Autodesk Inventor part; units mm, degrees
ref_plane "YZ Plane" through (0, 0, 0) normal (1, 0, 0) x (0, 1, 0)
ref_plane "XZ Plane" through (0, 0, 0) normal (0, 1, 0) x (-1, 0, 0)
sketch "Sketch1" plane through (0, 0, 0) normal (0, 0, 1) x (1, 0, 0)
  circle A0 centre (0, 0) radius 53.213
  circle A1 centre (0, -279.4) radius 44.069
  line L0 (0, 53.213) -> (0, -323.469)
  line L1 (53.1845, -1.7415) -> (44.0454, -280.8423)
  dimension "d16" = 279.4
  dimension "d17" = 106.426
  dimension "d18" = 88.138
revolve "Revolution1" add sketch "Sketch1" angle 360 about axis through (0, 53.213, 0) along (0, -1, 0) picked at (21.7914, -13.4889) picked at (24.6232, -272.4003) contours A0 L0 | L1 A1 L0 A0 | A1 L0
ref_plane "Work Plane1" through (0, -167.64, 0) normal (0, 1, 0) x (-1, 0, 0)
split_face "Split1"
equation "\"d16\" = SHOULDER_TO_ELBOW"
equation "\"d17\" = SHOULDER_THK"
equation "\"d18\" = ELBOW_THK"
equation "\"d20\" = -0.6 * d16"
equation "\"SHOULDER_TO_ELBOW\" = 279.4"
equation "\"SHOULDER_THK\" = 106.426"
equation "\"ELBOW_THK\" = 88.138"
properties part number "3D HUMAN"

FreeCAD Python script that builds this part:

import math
import FreeCAD as App
import Part
import Sketcher
from FreeCAD import Vector
Q = App.Units.Quantity

doc = App.newDocument("Part")
params = doc.addObject("Spreadsheet::Sheet", "Params")
for row, (alias, value) in enumerate([
    ("sketch1_radius", "2.095 in"),
    ("sketch1_radius2", "1.735 in"),
    ("revolution_angle", "360 deg"),
], start=1):
    params.set(f"A{row}", alias)
    params.set(f"B{row}", "=" + value)
    params.setAlias(f"B{row}", alias)

body = doc.addObject("PartDesign::Body", "Body")

sketch1 = body.newObject("Sketcher::SketchObject", "Sketch")
sketch1.AttachmentSupport = (doc.getObject("XY_Plane"), [""])
sketch1.MapMode = "FlatFace"
sketch1.addGeometry([
    Part.ArcOfCircle(Part.Circle(Vector(0, 0, 0), Vector(0, 0, 1), 53), math.radians(-2), math.radians(90)),
    Part.LineSegment(Vector(0, 53, 0), Vector(0, -323, 0)),
    Part.ArcOfCircle(Part.Circle(Vector(0, -279, 0), Vector(0, 0, 1), 44), math.radians(-90), math.radians(-2)),
    Part.LineSegment(Vector(44, -281, 0), Vector(53, -2, 0)),
], False)
sketch1.addConstraint([
    Sketcher.Constraint("Coincident", 0, 2, 1, 1),
    Sketcher.Constraint("Coincident", 1, 2, 2, 1),
    Sketcher.Constraint("Tangent", 2, 2, 3, 1),
    Sketcher.Constraint("Tangent", 3, 2, 0, 1),
    Sketcher.Constraint("Vertical", 1),
    Sketcher.Constraint("Coincident", 0, 3, -1, 1),
    Sketcher.Constraint("PointOnObject", 2, 3, -2),
    Sketcher.Constraint("PointOnObject", 0, 2, -2),
    Sketcher.Constraint("DistanceY", 2, 3, -1, 1, Q("11 in")),
    Sketcher.Constraint("Radius", 0, Q("2.095 in")),
    Sketcher.Constraint("Radius", 2, Q("1.735 in")),
])
sketch1.setExpression("Constraints[9]", "Params.sketch1_radius")
sketch1.setExpression("Constraints[10]", "Params.sketch1_radius2")
revolution = body.newObject("PartDesign::Revolution", "Revolution")
revolution.Profile = sketch1
revolution.ReferenceAxis = (sketch1, ["V_Axis"])
revolution.setExpression("Angle", "Params.revolution_angle")

doc.recompute()
